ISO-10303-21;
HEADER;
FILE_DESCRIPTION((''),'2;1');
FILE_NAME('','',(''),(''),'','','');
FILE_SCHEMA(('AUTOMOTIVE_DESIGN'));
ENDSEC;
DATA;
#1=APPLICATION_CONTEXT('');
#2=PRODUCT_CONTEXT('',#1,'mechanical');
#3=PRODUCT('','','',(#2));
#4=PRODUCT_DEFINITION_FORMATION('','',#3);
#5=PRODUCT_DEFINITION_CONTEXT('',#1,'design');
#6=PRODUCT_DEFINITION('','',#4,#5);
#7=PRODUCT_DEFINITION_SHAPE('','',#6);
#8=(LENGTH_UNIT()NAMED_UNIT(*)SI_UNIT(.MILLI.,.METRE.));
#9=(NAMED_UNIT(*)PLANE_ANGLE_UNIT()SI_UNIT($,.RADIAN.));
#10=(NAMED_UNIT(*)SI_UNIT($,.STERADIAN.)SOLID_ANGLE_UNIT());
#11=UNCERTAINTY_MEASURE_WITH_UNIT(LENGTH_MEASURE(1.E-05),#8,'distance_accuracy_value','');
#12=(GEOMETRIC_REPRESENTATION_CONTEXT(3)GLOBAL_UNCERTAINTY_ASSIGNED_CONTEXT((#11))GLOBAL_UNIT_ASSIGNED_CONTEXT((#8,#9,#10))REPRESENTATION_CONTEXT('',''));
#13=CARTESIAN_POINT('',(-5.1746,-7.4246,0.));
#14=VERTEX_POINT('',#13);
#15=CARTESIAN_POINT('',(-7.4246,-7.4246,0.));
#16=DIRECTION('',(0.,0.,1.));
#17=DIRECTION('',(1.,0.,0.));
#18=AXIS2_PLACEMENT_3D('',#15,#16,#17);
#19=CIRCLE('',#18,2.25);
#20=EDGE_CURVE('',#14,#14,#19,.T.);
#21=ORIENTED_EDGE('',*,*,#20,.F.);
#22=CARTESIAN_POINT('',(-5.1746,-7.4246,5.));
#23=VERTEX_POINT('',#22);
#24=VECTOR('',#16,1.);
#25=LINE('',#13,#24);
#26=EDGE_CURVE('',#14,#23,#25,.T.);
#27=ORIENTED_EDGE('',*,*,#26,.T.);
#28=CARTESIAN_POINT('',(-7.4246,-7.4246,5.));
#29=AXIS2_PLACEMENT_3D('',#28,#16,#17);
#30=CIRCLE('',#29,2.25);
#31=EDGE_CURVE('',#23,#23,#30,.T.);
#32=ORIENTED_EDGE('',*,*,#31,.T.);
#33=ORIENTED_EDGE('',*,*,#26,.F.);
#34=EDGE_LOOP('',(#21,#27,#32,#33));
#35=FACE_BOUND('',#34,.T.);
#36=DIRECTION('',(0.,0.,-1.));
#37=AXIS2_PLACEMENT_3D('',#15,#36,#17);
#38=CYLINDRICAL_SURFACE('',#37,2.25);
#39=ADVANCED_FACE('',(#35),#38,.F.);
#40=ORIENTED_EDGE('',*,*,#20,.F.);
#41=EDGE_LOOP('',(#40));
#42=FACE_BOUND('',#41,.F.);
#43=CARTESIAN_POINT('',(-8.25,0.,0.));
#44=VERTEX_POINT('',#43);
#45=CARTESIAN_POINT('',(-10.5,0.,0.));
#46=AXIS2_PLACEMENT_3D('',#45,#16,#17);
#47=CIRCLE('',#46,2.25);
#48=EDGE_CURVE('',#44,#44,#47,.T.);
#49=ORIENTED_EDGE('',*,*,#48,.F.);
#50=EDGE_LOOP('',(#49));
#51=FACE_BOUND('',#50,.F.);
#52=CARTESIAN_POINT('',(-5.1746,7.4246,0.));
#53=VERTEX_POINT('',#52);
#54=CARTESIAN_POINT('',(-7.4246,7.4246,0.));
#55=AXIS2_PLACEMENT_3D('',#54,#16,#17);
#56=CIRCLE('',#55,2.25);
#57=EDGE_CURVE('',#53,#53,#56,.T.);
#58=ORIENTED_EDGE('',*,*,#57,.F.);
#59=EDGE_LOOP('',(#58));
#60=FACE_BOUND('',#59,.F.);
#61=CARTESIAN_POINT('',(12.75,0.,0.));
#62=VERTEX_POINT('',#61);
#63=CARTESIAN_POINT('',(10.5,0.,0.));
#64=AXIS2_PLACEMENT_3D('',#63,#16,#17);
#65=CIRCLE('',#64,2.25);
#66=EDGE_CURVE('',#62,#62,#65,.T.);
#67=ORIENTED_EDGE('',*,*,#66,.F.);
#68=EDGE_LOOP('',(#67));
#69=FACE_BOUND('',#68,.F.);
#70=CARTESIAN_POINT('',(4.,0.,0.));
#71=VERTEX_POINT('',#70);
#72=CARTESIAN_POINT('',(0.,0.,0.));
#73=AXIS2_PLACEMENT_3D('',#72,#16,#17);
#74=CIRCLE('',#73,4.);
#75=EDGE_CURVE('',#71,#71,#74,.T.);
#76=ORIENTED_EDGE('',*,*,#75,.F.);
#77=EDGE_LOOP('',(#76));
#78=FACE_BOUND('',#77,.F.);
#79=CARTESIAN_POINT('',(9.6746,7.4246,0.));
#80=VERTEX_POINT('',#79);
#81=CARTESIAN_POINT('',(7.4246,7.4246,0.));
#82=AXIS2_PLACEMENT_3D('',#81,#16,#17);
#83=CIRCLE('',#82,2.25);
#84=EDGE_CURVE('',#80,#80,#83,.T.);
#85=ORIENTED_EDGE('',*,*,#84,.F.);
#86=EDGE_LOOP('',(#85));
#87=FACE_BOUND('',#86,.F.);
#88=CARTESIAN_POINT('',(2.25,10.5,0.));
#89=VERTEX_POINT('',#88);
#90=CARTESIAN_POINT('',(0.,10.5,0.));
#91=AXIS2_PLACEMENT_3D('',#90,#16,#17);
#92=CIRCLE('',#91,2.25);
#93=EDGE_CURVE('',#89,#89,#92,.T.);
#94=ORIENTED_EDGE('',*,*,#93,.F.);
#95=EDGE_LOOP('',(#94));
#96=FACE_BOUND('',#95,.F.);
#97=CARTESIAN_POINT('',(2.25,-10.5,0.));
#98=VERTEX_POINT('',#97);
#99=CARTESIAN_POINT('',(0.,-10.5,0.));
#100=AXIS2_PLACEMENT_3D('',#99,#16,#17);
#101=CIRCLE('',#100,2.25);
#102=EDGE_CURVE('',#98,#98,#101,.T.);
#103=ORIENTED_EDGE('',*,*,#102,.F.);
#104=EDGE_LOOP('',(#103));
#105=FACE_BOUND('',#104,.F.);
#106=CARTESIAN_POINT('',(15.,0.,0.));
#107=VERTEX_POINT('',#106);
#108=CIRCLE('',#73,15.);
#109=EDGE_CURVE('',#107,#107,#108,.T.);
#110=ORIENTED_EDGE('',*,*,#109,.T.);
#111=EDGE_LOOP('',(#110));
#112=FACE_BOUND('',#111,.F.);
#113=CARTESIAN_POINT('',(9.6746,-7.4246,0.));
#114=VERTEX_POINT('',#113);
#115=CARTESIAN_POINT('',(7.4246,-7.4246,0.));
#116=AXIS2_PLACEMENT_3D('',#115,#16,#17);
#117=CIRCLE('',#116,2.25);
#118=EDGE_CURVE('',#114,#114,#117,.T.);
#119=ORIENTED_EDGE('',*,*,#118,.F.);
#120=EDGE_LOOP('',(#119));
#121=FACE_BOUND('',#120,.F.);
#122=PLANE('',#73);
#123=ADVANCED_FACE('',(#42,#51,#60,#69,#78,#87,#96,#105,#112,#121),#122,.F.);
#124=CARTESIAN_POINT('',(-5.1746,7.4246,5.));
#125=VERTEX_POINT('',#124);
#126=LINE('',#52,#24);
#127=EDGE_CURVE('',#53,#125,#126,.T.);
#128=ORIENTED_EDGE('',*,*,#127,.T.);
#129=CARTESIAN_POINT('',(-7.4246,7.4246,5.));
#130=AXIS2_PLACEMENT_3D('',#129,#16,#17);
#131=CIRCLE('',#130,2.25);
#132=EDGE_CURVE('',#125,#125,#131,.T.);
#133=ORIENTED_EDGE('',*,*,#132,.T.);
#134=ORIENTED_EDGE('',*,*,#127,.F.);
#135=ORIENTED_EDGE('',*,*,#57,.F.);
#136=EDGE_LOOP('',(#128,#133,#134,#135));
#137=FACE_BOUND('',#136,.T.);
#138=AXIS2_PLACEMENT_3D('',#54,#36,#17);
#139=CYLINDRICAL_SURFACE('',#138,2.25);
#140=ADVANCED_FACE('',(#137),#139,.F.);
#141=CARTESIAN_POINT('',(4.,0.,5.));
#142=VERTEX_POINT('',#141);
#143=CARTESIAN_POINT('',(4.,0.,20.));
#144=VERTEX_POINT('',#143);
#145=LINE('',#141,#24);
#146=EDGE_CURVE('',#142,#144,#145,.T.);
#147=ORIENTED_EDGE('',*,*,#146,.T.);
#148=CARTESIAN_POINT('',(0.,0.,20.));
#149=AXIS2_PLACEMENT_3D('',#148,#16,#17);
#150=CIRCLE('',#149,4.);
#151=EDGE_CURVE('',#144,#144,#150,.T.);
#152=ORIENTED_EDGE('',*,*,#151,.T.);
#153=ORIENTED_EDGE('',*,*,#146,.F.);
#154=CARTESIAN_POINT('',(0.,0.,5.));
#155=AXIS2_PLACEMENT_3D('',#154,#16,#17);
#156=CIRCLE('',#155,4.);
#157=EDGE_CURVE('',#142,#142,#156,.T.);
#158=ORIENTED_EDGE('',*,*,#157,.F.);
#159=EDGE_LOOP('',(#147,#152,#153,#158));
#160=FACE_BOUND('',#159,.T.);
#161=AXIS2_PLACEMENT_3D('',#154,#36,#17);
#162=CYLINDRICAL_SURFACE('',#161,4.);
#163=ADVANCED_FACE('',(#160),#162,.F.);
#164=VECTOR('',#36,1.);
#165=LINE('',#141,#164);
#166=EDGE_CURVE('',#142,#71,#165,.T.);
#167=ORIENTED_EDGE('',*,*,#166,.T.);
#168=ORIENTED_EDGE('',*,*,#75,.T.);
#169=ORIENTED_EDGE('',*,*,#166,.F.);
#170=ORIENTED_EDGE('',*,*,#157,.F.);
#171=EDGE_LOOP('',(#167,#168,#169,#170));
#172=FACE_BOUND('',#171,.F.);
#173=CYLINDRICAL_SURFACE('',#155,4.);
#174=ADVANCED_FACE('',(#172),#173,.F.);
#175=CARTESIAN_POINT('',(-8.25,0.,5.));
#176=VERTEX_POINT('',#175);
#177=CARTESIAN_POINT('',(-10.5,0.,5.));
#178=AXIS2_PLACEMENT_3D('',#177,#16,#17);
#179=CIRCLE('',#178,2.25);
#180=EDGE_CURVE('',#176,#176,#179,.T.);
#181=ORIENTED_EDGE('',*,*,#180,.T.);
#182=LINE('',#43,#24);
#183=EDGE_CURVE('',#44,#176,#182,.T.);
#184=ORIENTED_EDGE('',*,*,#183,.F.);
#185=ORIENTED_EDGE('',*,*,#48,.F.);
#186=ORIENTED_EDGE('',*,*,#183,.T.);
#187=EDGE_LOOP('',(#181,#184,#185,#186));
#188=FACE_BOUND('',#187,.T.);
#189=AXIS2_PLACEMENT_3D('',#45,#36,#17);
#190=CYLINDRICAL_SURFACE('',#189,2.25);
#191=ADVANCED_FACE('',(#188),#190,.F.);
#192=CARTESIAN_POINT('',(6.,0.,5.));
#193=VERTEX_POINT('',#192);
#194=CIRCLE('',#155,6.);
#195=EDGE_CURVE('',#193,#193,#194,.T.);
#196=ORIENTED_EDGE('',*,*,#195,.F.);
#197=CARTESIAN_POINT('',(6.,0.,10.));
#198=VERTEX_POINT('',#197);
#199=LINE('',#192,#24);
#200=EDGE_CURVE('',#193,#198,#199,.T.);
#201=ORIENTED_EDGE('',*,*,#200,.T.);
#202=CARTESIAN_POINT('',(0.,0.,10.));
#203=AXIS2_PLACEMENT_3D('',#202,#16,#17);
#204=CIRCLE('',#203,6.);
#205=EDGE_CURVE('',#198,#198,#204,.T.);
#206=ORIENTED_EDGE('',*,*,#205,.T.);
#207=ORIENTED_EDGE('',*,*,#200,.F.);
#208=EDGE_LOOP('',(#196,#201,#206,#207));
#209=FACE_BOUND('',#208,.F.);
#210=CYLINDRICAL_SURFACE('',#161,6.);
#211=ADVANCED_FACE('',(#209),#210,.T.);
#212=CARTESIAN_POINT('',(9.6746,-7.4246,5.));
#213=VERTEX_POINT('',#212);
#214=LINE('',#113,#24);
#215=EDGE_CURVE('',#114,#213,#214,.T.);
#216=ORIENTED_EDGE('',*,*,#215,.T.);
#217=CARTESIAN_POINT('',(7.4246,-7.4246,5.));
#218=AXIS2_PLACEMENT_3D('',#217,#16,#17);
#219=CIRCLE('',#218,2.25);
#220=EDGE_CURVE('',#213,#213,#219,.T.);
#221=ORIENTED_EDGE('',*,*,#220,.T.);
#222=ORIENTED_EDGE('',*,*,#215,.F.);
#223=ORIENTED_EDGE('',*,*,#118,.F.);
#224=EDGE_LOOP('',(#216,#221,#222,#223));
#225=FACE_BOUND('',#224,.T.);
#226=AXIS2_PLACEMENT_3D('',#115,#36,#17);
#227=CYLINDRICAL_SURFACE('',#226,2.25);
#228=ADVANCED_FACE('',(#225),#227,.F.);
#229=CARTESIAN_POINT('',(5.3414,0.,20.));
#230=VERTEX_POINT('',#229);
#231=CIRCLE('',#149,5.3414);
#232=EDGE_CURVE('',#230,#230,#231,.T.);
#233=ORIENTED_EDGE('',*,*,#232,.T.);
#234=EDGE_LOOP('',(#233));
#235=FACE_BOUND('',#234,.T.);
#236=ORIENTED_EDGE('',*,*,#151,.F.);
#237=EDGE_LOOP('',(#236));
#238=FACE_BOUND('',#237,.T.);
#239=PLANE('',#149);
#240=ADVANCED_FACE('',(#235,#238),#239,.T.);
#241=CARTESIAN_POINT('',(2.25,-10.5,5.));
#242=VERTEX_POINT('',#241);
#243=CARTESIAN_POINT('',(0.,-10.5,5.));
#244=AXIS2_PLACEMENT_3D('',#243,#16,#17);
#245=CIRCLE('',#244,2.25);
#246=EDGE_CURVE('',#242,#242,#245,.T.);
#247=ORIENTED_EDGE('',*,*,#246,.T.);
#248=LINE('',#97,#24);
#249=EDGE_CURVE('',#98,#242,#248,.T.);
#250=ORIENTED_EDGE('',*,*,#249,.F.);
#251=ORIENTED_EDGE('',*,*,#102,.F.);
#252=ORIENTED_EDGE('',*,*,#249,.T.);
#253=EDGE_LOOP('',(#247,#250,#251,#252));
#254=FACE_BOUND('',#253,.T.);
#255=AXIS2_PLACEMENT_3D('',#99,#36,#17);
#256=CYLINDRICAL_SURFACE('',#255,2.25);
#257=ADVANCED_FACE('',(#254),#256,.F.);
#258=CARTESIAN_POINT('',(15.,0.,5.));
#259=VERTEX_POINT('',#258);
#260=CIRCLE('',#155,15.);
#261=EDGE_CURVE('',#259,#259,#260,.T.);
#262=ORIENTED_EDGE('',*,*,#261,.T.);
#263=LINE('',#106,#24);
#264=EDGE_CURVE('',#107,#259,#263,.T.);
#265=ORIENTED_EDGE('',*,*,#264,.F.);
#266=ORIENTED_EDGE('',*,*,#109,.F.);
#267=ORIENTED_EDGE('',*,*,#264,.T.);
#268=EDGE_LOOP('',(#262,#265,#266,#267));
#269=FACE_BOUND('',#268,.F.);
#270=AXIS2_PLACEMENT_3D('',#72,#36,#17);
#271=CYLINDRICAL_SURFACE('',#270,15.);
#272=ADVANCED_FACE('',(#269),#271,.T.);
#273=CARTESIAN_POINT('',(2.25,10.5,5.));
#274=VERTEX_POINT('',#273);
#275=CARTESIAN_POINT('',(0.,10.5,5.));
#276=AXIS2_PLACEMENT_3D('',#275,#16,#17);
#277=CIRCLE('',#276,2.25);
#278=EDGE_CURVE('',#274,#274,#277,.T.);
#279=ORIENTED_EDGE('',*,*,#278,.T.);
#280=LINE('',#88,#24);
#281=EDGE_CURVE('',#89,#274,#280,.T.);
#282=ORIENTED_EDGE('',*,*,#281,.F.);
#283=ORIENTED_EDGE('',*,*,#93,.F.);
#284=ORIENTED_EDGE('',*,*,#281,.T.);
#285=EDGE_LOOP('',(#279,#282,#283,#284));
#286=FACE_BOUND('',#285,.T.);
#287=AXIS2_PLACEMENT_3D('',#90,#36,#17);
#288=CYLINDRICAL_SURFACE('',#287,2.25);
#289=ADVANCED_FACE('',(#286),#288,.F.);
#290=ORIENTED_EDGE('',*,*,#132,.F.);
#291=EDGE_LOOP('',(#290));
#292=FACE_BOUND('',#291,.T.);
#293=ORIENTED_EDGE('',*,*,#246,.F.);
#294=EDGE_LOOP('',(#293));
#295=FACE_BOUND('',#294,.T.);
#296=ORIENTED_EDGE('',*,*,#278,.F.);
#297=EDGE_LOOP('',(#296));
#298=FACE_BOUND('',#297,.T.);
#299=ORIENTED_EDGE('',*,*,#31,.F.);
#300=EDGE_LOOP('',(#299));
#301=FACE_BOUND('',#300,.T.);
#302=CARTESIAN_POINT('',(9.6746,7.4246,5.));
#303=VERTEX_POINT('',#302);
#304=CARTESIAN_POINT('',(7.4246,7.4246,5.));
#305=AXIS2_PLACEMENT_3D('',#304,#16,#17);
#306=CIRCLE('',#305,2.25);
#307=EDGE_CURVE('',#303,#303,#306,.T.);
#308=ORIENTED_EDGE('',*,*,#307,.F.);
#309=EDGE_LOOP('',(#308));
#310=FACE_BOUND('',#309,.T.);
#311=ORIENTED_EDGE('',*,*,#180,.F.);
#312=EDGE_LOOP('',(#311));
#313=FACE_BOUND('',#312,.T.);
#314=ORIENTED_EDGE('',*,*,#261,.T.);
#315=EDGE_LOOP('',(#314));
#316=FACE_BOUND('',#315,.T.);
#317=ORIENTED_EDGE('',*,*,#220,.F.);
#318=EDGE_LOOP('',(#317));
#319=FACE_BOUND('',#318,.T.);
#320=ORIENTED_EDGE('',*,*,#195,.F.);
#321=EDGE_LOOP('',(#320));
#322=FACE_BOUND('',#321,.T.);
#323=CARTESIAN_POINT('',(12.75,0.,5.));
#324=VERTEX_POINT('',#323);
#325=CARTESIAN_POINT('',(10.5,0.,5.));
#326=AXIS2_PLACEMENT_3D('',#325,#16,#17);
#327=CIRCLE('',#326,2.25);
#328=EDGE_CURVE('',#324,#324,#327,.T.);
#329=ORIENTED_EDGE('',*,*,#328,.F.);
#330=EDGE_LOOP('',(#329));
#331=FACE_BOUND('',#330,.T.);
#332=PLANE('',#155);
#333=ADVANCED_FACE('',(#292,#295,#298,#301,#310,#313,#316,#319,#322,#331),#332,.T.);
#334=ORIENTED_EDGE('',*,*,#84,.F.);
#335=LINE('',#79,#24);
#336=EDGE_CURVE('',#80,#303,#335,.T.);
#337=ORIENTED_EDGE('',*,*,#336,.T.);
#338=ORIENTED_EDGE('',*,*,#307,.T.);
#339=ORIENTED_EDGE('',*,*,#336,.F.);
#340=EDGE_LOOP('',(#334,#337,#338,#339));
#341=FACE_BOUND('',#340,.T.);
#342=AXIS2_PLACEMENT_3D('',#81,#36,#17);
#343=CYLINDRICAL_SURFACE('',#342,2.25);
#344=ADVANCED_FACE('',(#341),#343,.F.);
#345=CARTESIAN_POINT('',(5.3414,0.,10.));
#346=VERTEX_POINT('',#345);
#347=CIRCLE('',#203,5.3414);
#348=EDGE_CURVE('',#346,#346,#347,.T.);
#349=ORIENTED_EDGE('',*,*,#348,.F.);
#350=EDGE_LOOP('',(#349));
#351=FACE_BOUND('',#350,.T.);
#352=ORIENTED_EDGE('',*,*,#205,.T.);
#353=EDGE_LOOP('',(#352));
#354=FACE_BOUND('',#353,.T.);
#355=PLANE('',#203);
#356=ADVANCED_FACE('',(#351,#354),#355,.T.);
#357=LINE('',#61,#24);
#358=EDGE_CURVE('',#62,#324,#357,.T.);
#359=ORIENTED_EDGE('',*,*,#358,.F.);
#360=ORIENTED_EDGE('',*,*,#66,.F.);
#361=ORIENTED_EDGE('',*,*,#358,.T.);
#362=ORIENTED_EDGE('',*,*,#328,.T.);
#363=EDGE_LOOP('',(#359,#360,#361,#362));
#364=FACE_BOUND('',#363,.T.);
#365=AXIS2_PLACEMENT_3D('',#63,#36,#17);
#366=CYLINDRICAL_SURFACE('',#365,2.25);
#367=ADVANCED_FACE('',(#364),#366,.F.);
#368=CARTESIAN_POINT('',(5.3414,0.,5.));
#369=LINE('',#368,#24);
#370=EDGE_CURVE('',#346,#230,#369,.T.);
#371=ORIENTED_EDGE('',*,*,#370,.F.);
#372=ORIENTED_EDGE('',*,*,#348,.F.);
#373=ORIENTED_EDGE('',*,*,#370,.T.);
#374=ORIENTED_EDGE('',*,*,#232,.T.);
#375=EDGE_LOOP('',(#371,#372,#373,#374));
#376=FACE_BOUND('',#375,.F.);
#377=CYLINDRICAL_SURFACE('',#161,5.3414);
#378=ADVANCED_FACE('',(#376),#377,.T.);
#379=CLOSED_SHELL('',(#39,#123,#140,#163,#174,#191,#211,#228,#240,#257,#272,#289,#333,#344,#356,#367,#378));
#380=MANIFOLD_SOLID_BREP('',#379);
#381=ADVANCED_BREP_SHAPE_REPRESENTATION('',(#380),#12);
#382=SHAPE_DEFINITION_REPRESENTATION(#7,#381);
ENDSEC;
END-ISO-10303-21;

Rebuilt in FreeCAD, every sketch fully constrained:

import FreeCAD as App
import Part
import Sketcher
from FreeCAD import Vector

doc = App.newDocument("Part")
body = doc.addObject("PartDesign::Body", "Body")

sketch1 = doc.addObject("Sketcher::SketchObject", "Sketch")
body.addObject(sketch1)
sketch1.AttachmentSupport = (doc.XY_Plane, [""])
sketch1.MapMode = "FlatFace"
sketch1.addGeometry([
    Part.Circle(Vector(0, 0, 0), Vector(0, 0, 1), 15),
    Part.Circle(Vector(-7.4, -7.4, 0), Vector(0, 0, 1), 2.2),
    Part.Circle(Vector(0, -10.5, 0), Vector(0, 0, 1), 2.2),
    Part.Circle(Vector(7.4, -7.4, 0), Vector(0, 0, 1), 2.2),
    Part.Circle(Vector(-10.5, 0, 0), Vector(0, 0, 1), 2.2),
    Part.Circle(Vector(-7.4, 7.4, 0), Vector(0, 0, 1), 2.2),
    Part.Circle(Vector(7.4, 7.4, 0), Vector(0, 0, 1), 2.2),
    Part.Circle(Vector(10.5, 0, 0), Vector(0, 0, 1), 2.2),
    Part.Circle(Vector(0, 10.5, 0), Vector(0, 0, 1), 2.2),
], False)
sketch1.addConstraint([
    Sketcher.Constraint("Coincident", 0, 3, -1, 1),
    Sketcher.Constraint("Equal", 1, 2),
    Sketcher.Constraint("Equal", 2, 3),
    Sketcher.Constraint("Equal", 3, 4),
    Sketcher.Constraint("Equal", 4, 5),
    Sketcher.Constraint("Equal", 5, 6),
    Sketcher.Constraint("Equal", 6, 7),
    Sketcher.Constraint("Equal", 7, 8),
    Sketcher.Constraint("Symmetric", 3, 3, 5, 3, -1, 1),
    Sketcher.Constraint("Symmetric", 1, 3, 6, 3, -1, 1),
    Sketcher.Constraint("Symmetric", 4, 3, 7, 3, -1, 1),
    Sketcher.Constraint("Symmetric", 2, 3, 8, 3, -1, 1),
    Sketcher.Constraint("Symmetric", 1, 3, 3, 3, -2),
    Sketcher.Constraint("PointOnObject", 2, 3, -2),
    Sketcher.Constraint("PointOnObject", 4, 3, -1),
    Sketcher.Constraint("Diameter", 0, 30.0),
    Sketcher.Constraint("Diameter", 1, 4.5),
    Sketcher.Constraint("DistanceY", 2, 3, -1, 1, 10.5),
    Sketcher.Constraint("DistanceX", 4, 3, -1, 1, 10.5),
    Sketcher.Constraint("DistanceX", 1, 3, -1, 1, 7.4246),
    Sketcher.Constraint("DistanceY", 1, 3, -1, 1, 7.4246),
])
pad1 = doc.addObject("PartDesign::Pad", "Pad")
body.addObject(pad1)
pad1.Profile = sketch1
pad1.Length = 5

sketch2 = doc.addObject("Sketcher::SketchObject", "Sketch001")
body.addObject(sketch2)
sketch2.AttachmentSupport = (doc.XY_Plane, [""])
sketch2.MapMode = "FlatFace"
sketch2.AttachmentOffset = App.Placement(Vector(0, 0, 5), App.Rotation())
sketch2.addGeometry([
    Part.Circle(Vector(0, 0, 0), Vector(0, 0, 1), 6),
    Part.Circle(Vector(0, 0, 0), Vector(0, 0, 1), 5),
], False)
sketch2.addConstraint([
    Sketcher.Constraint("Coincident", 0, 3, -1, 1),
    Sketcher.Constraint("Coincident", 1, 3, -1, 1),
    Sketcher.Constraint("Diameter", 0, 12.0),
    Sketcher.Constraint("Diameter", 1, 10.6828),
])
pad2 = doc.addObject("PartDesign::Pad", "Pad001")
body.addObject(pad2)
pad2.Profile = sketch2
pad2.Length = 5

sketch3 = doc.addObject("Sketcher::SketchObject", "Sketch002")
body.addObject(sketch3)
sketch3.AttachmentSupport = (doc.XY_Plane, [""])
sketch3.MapMode = "FlatFace"
sketch3.AttachmentOffset = App.Placement(Vector(0, 0, 5), App.Rotation())
sketch3.addGeometry([
    Part.Circle(Vector(0, 0, 0), Vector(0, 0, 1), 5.3),
    Part.Circle(Vector(0, 0, 0), Vector(0, 0, 1), 4),
], False)
sketch3.addConstraint([
    Sketcher.Constraint("Coincident", 0, 3, -1, 1),
    Sketcher.Constraint("Coincident", 1, 3, -1, 1),
    Sketcher.Constraint("Diameter", 1, 8.0),
    Sketcher.Constraint("Diameter", 0, 10.6828),
])
pad3 = doc.addObject("PartDesign::Pad", "Pad002")
body.addObject(pad3)
pad3.Profile = sketch3
pad3.Length = 15

sketch4 = doc.addObject("Sketcher::SketchObject", "Sketch003")
body.addObject(sketch4)
sketch4.AttachmentSupport = (doc.XY_Plane, [""])
sketch4.MapMode = "FlatFace"
sketch4.AttachmentOffset = App.Placement(Vector(0, 0, 5), App.Rotation())
sketch4.addGeometry(Part.Circle(Vector(0, 0, 0), Vector(0, 0, 1), 4), False)
sketch4.addConstraint([
    Sketcher.Constraint("Coincident", 0, 3, -1, 1),
    Sketcher.Constraint("Diameter", 0, 8.0),
])
pocket1 = doc.addObject("PartDesign::Pocket", "Pocket")
body.addObject(pocket1)
pocket1.Profile = sketch4
pocket1.Length = 21

doc.recompute()
